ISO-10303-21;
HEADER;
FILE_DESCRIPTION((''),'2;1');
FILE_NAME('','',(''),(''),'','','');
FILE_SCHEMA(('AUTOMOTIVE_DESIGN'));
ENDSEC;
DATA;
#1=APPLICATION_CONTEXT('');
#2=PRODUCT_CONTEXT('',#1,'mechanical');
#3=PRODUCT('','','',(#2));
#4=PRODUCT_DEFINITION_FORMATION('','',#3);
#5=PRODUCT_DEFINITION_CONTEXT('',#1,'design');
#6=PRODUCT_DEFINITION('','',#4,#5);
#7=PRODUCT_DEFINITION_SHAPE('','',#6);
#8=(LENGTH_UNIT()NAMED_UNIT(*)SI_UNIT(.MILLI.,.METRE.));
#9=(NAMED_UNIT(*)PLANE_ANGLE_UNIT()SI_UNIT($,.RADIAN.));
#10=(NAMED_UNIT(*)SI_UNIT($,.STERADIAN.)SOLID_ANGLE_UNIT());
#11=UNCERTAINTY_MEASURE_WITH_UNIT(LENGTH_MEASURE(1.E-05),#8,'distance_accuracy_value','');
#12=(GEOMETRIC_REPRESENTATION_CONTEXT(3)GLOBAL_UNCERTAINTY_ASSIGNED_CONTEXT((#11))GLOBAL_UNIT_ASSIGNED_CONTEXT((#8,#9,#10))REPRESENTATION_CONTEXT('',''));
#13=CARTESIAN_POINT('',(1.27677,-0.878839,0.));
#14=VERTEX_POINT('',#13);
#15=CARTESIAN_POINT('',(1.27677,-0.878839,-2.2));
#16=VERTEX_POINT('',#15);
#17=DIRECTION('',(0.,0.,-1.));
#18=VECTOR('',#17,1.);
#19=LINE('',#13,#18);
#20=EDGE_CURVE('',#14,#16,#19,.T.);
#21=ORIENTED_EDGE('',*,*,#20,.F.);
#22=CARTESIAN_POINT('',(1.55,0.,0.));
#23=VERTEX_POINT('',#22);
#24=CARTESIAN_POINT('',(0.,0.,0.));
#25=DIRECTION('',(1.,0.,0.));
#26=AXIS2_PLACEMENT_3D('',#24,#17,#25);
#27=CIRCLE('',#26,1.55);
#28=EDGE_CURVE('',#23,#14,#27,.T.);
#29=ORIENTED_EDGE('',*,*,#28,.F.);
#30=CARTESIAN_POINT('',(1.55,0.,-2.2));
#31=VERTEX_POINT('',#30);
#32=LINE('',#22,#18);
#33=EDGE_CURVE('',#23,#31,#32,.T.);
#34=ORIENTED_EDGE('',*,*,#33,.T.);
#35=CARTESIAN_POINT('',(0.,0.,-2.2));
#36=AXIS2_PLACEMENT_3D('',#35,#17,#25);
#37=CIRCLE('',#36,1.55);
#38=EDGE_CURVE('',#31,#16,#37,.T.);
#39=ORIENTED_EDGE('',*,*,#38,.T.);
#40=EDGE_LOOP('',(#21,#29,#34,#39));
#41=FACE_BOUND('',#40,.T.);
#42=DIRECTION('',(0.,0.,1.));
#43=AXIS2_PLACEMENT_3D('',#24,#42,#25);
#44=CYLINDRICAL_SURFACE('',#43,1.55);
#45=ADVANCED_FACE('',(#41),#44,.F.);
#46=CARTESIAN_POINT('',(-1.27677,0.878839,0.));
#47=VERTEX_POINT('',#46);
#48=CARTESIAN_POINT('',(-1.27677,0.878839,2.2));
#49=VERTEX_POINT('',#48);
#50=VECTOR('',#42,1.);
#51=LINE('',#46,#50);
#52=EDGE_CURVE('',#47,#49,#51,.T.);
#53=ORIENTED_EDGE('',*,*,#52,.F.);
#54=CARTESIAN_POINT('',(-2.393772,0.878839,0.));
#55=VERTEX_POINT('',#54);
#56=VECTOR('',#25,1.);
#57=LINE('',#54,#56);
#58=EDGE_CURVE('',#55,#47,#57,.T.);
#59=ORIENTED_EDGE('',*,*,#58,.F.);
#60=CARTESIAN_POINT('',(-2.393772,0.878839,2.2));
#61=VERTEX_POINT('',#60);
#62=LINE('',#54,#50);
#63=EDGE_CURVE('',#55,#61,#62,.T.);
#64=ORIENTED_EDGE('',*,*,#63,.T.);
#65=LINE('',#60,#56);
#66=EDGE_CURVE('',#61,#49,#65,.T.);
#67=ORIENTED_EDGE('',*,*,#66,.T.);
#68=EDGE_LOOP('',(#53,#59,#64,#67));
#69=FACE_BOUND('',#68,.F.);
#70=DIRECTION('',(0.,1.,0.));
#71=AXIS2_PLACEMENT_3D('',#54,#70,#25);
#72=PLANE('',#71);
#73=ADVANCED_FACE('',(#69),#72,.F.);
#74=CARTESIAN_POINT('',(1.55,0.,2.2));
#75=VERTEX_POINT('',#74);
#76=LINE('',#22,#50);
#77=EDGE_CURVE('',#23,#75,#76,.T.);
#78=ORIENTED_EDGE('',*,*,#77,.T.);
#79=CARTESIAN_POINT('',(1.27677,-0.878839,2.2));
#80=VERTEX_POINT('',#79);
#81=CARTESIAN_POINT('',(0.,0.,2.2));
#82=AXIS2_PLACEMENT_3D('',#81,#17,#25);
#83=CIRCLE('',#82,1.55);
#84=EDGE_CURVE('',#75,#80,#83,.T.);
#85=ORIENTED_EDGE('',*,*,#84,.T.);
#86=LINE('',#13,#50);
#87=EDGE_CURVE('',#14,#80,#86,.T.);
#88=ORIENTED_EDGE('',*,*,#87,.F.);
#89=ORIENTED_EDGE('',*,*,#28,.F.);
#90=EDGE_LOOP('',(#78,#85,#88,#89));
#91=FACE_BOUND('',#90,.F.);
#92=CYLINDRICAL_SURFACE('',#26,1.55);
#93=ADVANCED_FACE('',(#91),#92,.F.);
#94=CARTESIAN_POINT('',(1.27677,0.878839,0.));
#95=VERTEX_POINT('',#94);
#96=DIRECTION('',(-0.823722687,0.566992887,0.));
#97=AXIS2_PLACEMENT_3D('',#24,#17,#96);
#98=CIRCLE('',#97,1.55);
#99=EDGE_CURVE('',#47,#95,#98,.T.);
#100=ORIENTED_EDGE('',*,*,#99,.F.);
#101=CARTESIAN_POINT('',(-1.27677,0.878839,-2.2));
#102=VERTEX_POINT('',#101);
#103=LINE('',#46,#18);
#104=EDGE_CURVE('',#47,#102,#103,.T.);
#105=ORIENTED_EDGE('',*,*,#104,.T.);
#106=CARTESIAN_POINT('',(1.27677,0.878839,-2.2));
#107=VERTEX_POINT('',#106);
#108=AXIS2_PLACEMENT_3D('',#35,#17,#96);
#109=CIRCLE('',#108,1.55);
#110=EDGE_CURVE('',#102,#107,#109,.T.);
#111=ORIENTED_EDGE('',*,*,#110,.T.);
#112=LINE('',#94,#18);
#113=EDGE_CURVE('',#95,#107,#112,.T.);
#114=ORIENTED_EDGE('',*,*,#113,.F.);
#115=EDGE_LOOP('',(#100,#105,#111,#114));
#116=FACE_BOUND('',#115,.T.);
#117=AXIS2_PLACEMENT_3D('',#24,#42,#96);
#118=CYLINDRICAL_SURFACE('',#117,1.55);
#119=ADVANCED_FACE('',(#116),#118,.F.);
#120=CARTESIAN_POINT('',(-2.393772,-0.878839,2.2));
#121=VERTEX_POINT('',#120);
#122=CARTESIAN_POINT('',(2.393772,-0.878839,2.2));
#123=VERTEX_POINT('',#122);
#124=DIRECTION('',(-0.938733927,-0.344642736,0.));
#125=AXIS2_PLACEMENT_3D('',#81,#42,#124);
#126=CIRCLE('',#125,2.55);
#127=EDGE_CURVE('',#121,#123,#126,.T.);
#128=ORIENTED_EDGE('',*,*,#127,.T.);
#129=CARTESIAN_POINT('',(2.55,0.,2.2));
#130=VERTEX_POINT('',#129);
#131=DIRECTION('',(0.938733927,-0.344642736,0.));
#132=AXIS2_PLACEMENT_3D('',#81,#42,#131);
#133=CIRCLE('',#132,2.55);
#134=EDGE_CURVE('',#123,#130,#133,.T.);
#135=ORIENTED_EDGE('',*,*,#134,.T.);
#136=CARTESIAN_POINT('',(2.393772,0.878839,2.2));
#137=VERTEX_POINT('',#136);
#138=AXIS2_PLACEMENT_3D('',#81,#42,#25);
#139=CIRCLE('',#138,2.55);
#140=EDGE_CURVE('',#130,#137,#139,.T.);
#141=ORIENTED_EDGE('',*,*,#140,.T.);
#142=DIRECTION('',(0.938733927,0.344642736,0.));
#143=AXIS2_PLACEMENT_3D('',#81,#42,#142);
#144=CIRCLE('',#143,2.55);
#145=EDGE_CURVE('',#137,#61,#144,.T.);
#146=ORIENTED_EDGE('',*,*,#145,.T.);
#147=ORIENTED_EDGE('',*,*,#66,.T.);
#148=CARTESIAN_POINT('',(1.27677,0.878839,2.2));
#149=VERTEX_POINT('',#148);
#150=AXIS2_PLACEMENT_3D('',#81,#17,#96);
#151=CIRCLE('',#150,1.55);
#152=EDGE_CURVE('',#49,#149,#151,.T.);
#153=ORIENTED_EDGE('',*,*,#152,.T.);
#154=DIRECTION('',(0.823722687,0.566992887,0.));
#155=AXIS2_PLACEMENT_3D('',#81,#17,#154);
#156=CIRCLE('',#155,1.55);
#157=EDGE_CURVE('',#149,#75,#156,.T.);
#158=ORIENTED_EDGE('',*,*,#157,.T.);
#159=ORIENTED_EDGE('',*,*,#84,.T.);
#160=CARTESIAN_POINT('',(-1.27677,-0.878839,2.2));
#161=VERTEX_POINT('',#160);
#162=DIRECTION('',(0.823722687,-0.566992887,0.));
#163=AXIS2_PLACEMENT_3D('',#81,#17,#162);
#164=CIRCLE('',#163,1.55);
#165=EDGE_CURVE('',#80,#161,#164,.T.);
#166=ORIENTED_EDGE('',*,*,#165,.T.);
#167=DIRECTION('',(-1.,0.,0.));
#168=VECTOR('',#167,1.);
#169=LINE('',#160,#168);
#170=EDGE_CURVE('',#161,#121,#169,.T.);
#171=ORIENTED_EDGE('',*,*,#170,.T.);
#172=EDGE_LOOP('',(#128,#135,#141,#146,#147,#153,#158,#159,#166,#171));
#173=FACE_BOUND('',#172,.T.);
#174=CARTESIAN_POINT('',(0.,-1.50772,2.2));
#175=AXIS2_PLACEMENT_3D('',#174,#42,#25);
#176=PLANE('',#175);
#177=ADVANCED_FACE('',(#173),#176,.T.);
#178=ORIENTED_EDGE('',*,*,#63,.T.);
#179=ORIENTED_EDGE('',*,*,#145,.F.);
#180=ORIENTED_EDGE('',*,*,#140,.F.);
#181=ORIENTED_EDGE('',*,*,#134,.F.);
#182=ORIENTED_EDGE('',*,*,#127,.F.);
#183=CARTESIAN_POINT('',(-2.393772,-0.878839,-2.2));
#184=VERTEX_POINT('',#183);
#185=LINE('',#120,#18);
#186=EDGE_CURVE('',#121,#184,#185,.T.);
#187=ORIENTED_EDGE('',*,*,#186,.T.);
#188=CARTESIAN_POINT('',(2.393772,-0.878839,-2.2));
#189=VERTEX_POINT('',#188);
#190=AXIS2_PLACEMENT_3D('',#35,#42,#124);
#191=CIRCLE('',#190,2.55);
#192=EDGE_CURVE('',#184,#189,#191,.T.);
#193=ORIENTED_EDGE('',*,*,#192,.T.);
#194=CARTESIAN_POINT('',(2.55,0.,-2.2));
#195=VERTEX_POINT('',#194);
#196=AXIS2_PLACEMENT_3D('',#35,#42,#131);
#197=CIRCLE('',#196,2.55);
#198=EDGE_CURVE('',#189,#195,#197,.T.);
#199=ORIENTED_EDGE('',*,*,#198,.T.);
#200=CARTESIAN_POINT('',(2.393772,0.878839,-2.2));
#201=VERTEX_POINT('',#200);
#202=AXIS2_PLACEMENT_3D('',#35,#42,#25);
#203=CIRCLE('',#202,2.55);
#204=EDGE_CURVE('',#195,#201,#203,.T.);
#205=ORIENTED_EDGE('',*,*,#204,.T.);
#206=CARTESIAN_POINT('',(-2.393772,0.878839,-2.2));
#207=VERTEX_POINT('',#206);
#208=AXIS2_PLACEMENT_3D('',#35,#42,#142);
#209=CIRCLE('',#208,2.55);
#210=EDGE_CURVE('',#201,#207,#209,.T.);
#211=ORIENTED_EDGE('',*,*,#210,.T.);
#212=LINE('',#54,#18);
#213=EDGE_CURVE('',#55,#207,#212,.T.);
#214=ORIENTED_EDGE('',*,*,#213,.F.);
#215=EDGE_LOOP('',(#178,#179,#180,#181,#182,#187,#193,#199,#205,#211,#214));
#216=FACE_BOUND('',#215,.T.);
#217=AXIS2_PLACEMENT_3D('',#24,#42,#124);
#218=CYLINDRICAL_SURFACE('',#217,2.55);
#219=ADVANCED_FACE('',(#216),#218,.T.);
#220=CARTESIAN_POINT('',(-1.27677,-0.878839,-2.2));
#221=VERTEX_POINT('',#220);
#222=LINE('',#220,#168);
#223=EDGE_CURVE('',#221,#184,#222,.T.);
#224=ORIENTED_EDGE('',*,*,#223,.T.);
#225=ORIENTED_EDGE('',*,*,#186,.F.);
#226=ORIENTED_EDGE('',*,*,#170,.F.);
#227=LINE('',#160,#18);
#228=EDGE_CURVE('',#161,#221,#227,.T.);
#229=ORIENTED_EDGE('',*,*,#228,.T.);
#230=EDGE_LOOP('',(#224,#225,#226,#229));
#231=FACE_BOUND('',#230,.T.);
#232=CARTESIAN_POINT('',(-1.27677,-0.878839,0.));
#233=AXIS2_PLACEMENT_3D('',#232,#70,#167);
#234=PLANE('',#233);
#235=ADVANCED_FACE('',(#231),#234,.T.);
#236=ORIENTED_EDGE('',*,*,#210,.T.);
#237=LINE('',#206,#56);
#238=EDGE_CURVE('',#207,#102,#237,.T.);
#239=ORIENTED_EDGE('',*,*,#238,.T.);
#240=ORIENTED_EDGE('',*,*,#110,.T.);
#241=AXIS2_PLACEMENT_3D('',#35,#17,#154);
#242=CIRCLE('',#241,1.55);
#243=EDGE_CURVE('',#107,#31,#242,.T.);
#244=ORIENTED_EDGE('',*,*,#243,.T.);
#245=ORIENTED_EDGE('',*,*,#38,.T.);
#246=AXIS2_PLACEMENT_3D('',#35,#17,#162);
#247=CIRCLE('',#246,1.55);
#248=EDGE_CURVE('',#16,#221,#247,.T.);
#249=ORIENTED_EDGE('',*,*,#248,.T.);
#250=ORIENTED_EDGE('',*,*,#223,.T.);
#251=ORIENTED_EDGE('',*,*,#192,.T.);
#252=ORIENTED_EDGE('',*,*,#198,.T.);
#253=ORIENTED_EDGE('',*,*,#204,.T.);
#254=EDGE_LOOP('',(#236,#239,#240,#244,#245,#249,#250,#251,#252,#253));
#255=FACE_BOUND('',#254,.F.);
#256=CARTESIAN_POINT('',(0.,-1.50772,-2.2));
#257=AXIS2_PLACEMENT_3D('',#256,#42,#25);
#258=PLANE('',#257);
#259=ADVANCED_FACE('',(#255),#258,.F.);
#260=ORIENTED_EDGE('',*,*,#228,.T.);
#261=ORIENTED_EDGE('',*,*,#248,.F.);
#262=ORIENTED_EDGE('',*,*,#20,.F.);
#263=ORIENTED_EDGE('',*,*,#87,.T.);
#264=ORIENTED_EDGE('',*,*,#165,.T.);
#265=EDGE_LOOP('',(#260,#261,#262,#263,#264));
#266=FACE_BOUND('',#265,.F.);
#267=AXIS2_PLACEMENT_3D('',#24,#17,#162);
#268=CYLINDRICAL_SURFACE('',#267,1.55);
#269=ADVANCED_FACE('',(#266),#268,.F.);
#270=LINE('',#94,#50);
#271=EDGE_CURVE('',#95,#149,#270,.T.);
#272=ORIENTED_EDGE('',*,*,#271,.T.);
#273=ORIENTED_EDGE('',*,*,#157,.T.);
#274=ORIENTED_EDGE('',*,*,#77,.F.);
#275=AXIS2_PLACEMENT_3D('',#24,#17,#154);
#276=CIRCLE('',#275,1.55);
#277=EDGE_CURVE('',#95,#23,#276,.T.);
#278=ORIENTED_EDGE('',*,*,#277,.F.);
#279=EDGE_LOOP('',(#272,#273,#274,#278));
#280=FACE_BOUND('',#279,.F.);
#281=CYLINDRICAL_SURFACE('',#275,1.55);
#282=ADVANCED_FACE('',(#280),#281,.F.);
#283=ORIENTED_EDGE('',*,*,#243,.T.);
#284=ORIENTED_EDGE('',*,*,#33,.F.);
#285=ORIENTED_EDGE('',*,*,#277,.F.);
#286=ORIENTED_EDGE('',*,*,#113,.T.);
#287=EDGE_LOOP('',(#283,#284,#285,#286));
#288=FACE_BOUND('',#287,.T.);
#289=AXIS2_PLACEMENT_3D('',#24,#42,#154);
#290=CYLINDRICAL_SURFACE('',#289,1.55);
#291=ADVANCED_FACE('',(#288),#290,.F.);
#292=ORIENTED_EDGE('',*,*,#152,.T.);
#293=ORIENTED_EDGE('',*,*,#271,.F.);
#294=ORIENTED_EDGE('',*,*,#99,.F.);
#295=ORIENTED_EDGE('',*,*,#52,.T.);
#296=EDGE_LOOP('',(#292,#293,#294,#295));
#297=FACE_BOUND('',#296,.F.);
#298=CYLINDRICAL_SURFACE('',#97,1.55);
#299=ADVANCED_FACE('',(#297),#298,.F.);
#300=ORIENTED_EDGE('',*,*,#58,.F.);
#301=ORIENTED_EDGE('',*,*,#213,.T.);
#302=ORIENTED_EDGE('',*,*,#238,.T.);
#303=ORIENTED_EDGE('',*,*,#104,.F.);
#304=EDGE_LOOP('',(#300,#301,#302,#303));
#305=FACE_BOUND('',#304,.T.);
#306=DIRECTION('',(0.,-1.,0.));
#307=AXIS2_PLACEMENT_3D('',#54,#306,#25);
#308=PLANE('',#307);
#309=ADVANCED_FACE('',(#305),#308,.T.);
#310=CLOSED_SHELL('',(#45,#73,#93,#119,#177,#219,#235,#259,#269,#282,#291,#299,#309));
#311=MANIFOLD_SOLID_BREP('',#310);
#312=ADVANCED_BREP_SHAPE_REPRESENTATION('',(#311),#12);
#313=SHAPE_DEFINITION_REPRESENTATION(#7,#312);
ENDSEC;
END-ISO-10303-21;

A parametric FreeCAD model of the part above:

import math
import FreeCAD as App
import Part
import Sketcher

V = App.Vector

doc = App.newDocument("Part")
params = doc.addObject("Spreadsheet::Sheet", "Params")
for row, (alias, value) in enumerate([
    ("sketch1_radius", "2.55 mm"),
    ("sketch1_radius2", "1.55 mm"),
    ("pad1_length", "4.4 mm"),
], start=1):
    params.set(f"A{row}", alias)
    params.set(f"B{row}", "=" + value)
    params.setAlias(f"B{row}", alias)

body = doc.addObject("PartDesign::Body", "Body")

# Sketch on XY plane
sketch1 = body.newObject("Sketcher::SketchObject", "Sketch")
sketch1.AttachmentSupport = (doc.getObject("XY_Plane"), [""])
sketch1.MapMode = "FlatFace"
sketch1.addGeometry(Part.ArcOfCircle(Part.Circle(V(0, 0, 0), V(0, 0, 1), 2.5), math.radians(-160), math.radians(-20)), False)
sketch1.addGeometry(Part.ArcOfCircle(Part.Circle(V(0, 0, 0), V(0, 0, 1), 2.5), math.radians(-20), math.radians(0)), False)
sketch1.addGeometry(Part.ArcOfCircle(Part.Circle(V(0, 0, 0), V(0, 0, 1), 2.5), math.radians(0), math.radians(20)), False)
sketch1.addGeometry(Part.ArcOfCircle(Part.Circle(V(0, 0, 0), V(0, 0, 1), 2.5), math.radians(20), math.radians(160)), False)
sketch1.addGeometry(Part.LineSegment(V(-2.4, 0.9, 0), V(-1.3, 0.9, 0)), False)
sketch1.addGeometry(Part.ArcOfCircle(Part.Circle(V(0, 0, 0), V(0, 0, 1), 1.6), math.radians(35), math.radians(145)), False)
sketch1.addGeometry(Part.ArcOfCircle(Part.Circle(V(0, 0, 0), V(0, 0, 1), 1.6), math.radians(0), math.radians(35)), False)
sketch1.addGeometry(Part.ArcOfCircle(Part.Circle(V(0, 0, 0), V(0, 0, 1), 1.6), math.radians(-35), math.radians(0)), False)
sketch1.addGeometry(Part.ArcOfCircle(Part.Circle(V(0, 0, 0), V(0, 0, 1), 1.6), math.radians(-145), math.radians(-35)), False)
sketch1.addGeometry(Part.LineSegment(V(-1.3, -0.9, 0), V(-2.4, -0.9, 0)), False)
sketch1.addConstraint(Sketcher.Constraint("Tangent", 0, 2, 1, 1))
sketch1.addConstraint(Sketcher.Constraint("Tangent", 1, 2, 2, 1))
sketch1.addConstraint(Sketcher.Constraint("Tangent", 2, 2, 3, 1))
sketch1.addConstraint(Sketcher.Constraint("Coincident", 3, 2, 4, 1))
sketch1.addConstraint(Sketcher.Constraint("Coincident", 4, 2, 5, 2))
sketch1.addConstraint(Sketcher.Constraint("Tangent", 5, 1, 6, 2))
sketch1.addConstraint(Sketcher.Constraint("Tangent", 6, 1, 7, 2))
sketch1.addConstraint(Sketcher.Constraint("Tangent", 7, 1, 8, 2))
sketch1.addConstraint(Sketcher.Constraint("Coincident", 8, 1, 9, 1))
sketch1.addConstraint(Sketcher.Constraint("Coincident", 9, 2, 0, 1))
sketch1.addConstraint(Sketcher.Constraint("Horizontal", 4))
sketch1.addConstraint(Sketcher.Constraint("Horizontal", 9))
sketch1.addConstraint(Sketcher.Constraint("Coincident", 0, 3, -1, 1))
sketch1.addConstraint(Sketcher.Constraint("Coincident", 2, 3, -1, 1))
sketch1.addConstraint(Sketcher.Constraint("Coincident", 5, 3, -1, 1))
sketch1.addConstraint(Sketcher.Constraint("Coincident", 7, 3, -1, 1))
sketch1.addConstraint(Sketcher.Constraint("Equal", 2, 3))
sketch1.addConstraint(Sketcher.Constraint("Equal", 7, 8))
sketch1.addConstraint(Sketcher.Constraint("PointOnObject", 1, 2, -1))
sketch1.addConstraint(Sketcher.Constraint("PointOnObject", 6, 1, -1))
sketch1.addConstraint(Sketcher.Constraint("Horizontal", 2, 2, 3, 2))
sketch1.addConstraint(Sketcher.Constraint("Horizontal", 4, 2, 5, 1))
sketch1.addConstraint(Sketcher.Constraint("Horizontal", 0, 2, 7, 1))
sketch1.addConstraint(Sketcher.Constraint("Horizontal", 7, 1, 8, 1))
sketch1.addConstraint(Sketcher.Constraint("Vertical", 0, 2, 2, 2))
sketch1.addConstraint(Sketcher.Constraint("Radius", 0, 2.55))
sketch1.addConstraint(Sketcher.Constraint("Radius", 5, 1.55))
sketch1.addConstraint(Sketcher.Constraint("DistanceX", 4, 1, 4, 2, 1.117001))
sketch1.setExpression("Constraints[25]", "Params.sketch1_radius")
sketch1.setExpression("Constraints[26]", "Params.sketch1_radius2")
pad1 = body.newObject("PartDesign::Pad", "Pad")
pad1.Profile = sketch1
pad1.setExpression("Length", "Params.pad1_length")
pad1.Midplane = True

doc.recompute()
